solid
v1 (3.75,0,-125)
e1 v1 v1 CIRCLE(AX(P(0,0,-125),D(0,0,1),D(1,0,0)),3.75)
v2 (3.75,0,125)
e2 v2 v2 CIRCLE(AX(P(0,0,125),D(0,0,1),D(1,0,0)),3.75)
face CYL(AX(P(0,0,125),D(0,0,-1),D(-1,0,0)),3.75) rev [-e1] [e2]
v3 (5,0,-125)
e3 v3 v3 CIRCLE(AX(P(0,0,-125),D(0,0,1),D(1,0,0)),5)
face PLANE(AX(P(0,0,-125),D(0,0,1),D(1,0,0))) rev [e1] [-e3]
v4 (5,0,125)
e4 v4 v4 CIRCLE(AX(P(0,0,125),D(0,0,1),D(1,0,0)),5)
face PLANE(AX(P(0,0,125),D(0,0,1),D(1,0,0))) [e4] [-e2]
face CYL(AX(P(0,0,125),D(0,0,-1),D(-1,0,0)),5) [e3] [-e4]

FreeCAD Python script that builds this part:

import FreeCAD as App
import Part
import Sketcher
from FreeCAD import Vector
Q = App.Units.Quantity

doc = App.newDocument("Part")
body = doc.addObject("PartDesign::Body", "Body")

# Sketch on XY plane
sketch1 = doc.addObject("Sketcher::SketchObject", "Sketch")
body.addObject(sketch1)
sketch1.AttachmentSupport = (doc.XY_Plane, [""])
sketch1.MapMode = "FlatFace"
sketch1.addGeometry(Part.Circle(Vector(0, 0, 0), Vector(0, 0, 1), 5), False)
sketch1.addGeometry(Part.Circle(Vector(0, 0, 0), Vector(0, 0, 1), 3.75), False)
sketch1.addConstraint(Sketcher.Constraint("Coincident", 0, 3, -1, 1))
sketch1.addConstraint(Sketcher.Constraint("Coincident", 1, 3, -1, 1))
sketch1.addConstraint(Sketcher.Constraint("Diameter", 0, Q("10 mm")))
sketch1.addConstraint(Sketcher.Constraint("Diameter", 1, Q("7.5 mm")))
pad1 = doc.addObject("PartDesign::Pad", "Pad")
body.addObject(pad1)
pad1.Profile = sketch1
pad1.Length = 250
pad1.Midplane = True

doc.recompute()
